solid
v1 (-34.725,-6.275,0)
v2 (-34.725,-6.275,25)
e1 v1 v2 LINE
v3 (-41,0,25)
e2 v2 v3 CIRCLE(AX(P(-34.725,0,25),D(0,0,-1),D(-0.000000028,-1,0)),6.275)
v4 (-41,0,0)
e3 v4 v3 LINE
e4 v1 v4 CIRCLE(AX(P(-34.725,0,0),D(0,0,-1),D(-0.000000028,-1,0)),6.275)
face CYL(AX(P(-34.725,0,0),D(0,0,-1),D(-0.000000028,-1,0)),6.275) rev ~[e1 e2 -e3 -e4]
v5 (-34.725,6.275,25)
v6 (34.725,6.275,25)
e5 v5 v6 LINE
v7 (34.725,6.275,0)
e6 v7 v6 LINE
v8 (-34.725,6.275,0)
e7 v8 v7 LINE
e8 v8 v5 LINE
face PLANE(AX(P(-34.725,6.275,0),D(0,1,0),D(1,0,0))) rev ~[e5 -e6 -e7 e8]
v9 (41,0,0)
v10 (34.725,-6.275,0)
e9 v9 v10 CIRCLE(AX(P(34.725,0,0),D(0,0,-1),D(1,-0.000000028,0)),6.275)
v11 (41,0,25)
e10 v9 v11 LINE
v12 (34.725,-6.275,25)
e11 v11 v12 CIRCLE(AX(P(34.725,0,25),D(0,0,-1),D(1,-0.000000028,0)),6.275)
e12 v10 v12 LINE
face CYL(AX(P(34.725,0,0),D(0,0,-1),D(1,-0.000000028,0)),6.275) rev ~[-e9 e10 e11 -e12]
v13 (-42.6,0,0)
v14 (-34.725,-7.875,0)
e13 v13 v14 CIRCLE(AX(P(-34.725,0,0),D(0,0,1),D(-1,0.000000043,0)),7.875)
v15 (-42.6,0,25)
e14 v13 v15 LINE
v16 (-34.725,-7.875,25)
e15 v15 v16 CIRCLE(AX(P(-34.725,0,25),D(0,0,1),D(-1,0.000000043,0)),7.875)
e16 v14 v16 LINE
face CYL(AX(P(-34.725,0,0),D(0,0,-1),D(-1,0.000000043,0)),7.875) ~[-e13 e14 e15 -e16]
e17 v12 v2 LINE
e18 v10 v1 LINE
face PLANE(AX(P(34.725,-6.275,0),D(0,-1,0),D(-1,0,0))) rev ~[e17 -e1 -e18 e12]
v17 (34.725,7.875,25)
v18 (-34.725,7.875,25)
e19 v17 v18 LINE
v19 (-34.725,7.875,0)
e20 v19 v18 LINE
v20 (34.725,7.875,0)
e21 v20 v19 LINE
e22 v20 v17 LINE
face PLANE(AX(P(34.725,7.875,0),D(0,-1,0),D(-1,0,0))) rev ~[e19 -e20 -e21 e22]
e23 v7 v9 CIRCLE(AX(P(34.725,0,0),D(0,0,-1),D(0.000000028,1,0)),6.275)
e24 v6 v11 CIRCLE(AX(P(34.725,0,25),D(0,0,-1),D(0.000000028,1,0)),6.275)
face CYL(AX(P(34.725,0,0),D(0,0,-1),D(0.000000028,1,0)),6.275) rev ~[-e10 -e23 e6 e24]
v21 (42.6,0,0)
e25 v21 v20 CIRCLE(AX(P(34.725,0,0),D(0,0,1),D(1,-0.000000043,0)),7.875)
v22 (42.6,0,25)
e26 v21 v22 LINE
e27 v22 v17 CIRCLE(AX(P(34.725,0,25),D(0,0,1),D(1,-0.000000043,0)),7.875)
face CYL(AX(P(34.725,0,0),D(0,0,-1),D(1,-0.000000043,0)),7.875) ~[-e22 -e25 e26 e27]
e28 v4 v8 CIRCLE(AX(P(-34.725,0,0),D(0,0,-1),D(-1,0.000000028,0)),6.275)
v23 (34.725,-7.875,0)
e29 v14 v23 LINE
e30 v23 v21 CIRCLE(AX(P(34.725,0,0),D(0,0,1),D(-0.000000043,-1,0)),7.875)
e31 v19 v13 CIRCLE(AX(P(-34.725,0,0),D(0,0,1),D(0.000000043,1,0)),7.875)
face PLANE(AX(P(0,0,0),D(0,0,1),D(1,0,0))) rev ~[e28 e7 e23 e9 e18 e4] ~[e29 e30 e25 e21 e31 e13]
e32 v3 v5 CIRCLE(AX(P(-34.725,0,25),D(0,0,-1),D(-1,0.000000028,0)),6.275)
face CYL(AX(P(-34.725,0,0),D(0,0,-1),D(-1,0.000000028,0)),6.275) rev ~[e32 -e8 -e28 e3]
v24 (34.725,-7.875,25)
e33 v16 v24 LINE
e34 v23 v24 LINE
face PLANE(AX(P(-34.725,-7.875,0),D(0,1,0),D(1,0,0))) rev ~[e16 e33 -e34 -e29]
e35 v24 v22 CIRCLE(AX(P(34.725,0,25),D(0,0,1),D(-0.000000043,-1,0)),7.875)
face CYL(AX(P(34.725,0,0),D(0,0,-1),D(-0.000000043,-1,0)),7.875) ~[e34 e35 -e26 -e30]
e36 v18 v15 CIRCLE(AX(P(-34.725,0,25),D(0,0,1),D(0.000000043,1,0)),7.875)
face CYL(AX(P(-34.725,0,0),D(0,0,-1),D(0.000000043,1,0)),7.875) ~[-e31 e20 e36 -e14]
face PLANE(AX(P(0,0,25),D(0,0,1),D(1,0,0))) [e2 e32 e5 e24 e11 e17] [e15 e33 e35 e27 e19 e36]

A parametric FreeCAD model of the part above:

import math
import FreeCAD as App
import Part
import Sketcher

V = App.Vector
Q = App.Units.Quantity

doc = App.newDocument("Part")
body = doc.addObject("PartDesign::Body", "Body")

# Sketch on XY plane
sketch1 = body.newObject("Sketcher::SketchObject", "Sketch")
sketch1.AttachmentSupport = (doc.getObject("XY_Plane"), [""])
sketch1.MapMode = "FlatFace"
sketch1.addGeometry(Part.LineSegment(V(-35, -8, 0), V(35, -8, 0)), False)
sketch1.addGeometry(Part.ArcOfCircle(Part.Circle(V(35, 0, 0), V(0, 0, 1), 8), math.radians(-90), math.radians(0)), False)
sketch1.addGeometry(Part.ArcOfCircle(Part.Circle(V(35, 0, 0), V(0, 0, 1), 8), math.radians(0), math.radians(90)), False)
sketch1.addGeometry(Part.LineSegment(V(35, 8, 0), V(-35, 8, 0)), False)
sketch1.addGeometry(Part.ArcOfCircle(Part.Circle(V(-35, 0, 0), V(0, 0, 1), 8), math.radians(90), math.radians(180)), False)
sketch1.addGeometry(Part.ArcOfCircle(Part.Circle(V(-35, 0, 0), V(0, 0, 1), 8), math.radians(180), math.radians(270)), False)
sketch1.addGeometry(Part.ArcOfCircle(Part.Circle(V(-35, 0, 0), V(0, 0, 1), 6), math.radians(90), math.radians(180)), False)
sketch1.addGeometry(Part.LineSegment(V(-35, 6, 0), V(35, 6, 0)), False)
sketch1.addGeometry(Part.ArcOfCircle(Part.Circle(V(35, 0, 0), V(0, 0, 1), 6), math.radians(0), math.radians(90)), False)
sketch1.addGeometry(Part.ArcOfCircle(Part.Circle(V(35, 0, 0), V(0, 0, 1), 6), math.radians(-90), math.radians(0)), False)
sketch1.addGeometry(Part.LineSegment(V(35, -6, 0), V(-35, -6, 0)), False)
sketch1.addGeometry(Part.ArcOfCircle(Part.Circle(V(-35, 0, 0), V(0, 0, 1), 6), math.radians(-180), math.radians(-90)), False)
sketch1.addConstraint(Sketcher.Constraint("Tangent", 0, 2, 1, 1))
sketch1.addConstraint(Sketcher.Constraint("Tangent", 1, 2, 2, 1))
sketch1.addConstraint(Sketcher.Constraint("Tangent", 2, 2, 3, 1))
sketch1.addConstraint(Sketcher.Constraint("Tangent", 3, 2, 4, 1))
sketch1.addConstraint(Sketcher.Constraint("Tangent", 4, 2, 5, 1))
sketch1.addConstraint(Sketcher.Constraint("Tangent", 5, 2, 0, 1))
sketch1.addConstraint(Sketcher.Constraint("Tangent", 6, 1, 7, 1))
sketch1.addConstraint(Sketcher.Constraint("Tangent", 7, 2, 8, 2))
sketch1.addConstraint(Sketcher.Constraint("Tangent", 8, 1, 9, 2))
sketch1.addConstraint(Sketcher.Constraint("Tangent", 9, 1, 10, 1))
sketch1.addConstraint(Sketcher.Constraint("Tangent", 10, 2, 11, 2))
sketch1.addConstraint(Sketcher.Constraint("Tangent", 11, 1, 6, 2))
sketch1.addConstraint(Sketcher.Constraint("Horizontal", 0))
sketch1.addConstraint(Sketcher.Constraint("Horizontal", 3))
sketch1.addConstraint(Sketcher.Constraint("Horizontal", 7))
sketch1.addConstraint(Sketcher.Constraint("Horizontal", 10))
sketch1.addConstraint(Sketcher.Constraint("Coincident", 6, 3, 4, 3))
sketch1.addConstraint(Sketcher.Constraint("Coincident", 8, 3, 1, 3))
sketch1.addConstraint(Sketcher.Constraint("Equal", 1, 2))
sketch1.addConstraint(Sketcher.Constraint("Equal", 2, 4))
sketch1.addConstraint(Sketcher.Constraint("Equal", 8, 9))
sketch1.addConstraint(Sketcher.Constraint("Symmetric", 1, 3, 4, 3, -1, 1))
sketch1.addConstraint(Sketcher.Constraint("PointOnObject", 1, 2, -1))
sketch1.addConstraint(Sketcher.Constraint("PointOnObject", 4, 2, -1))
sketch1.addConstraint(Sketcher.Constraint("PointOnObject", 8, 1, -1))
sketch1.addConstraint(Sketcher.Constraint("PointOnObject", 11, 1, -1))
sketch1.addConstraint(Sketcher.Constraint("DistanceX", -1, 1, 8, 1, Q("41 mm")))
sketch1.addConstraint(Sketcher.Constraint("Radius", 1, Q("7.875 mm")))
sketch1.addConstraint(Sketcher.Constraint("Radius", 6, Q("6.275 mm")))
pad1 = body.newObject("PartDesign::Pad", "Pad")
pad1.Profile = sketch1
pad1.Length = 25

doc.recompute()
